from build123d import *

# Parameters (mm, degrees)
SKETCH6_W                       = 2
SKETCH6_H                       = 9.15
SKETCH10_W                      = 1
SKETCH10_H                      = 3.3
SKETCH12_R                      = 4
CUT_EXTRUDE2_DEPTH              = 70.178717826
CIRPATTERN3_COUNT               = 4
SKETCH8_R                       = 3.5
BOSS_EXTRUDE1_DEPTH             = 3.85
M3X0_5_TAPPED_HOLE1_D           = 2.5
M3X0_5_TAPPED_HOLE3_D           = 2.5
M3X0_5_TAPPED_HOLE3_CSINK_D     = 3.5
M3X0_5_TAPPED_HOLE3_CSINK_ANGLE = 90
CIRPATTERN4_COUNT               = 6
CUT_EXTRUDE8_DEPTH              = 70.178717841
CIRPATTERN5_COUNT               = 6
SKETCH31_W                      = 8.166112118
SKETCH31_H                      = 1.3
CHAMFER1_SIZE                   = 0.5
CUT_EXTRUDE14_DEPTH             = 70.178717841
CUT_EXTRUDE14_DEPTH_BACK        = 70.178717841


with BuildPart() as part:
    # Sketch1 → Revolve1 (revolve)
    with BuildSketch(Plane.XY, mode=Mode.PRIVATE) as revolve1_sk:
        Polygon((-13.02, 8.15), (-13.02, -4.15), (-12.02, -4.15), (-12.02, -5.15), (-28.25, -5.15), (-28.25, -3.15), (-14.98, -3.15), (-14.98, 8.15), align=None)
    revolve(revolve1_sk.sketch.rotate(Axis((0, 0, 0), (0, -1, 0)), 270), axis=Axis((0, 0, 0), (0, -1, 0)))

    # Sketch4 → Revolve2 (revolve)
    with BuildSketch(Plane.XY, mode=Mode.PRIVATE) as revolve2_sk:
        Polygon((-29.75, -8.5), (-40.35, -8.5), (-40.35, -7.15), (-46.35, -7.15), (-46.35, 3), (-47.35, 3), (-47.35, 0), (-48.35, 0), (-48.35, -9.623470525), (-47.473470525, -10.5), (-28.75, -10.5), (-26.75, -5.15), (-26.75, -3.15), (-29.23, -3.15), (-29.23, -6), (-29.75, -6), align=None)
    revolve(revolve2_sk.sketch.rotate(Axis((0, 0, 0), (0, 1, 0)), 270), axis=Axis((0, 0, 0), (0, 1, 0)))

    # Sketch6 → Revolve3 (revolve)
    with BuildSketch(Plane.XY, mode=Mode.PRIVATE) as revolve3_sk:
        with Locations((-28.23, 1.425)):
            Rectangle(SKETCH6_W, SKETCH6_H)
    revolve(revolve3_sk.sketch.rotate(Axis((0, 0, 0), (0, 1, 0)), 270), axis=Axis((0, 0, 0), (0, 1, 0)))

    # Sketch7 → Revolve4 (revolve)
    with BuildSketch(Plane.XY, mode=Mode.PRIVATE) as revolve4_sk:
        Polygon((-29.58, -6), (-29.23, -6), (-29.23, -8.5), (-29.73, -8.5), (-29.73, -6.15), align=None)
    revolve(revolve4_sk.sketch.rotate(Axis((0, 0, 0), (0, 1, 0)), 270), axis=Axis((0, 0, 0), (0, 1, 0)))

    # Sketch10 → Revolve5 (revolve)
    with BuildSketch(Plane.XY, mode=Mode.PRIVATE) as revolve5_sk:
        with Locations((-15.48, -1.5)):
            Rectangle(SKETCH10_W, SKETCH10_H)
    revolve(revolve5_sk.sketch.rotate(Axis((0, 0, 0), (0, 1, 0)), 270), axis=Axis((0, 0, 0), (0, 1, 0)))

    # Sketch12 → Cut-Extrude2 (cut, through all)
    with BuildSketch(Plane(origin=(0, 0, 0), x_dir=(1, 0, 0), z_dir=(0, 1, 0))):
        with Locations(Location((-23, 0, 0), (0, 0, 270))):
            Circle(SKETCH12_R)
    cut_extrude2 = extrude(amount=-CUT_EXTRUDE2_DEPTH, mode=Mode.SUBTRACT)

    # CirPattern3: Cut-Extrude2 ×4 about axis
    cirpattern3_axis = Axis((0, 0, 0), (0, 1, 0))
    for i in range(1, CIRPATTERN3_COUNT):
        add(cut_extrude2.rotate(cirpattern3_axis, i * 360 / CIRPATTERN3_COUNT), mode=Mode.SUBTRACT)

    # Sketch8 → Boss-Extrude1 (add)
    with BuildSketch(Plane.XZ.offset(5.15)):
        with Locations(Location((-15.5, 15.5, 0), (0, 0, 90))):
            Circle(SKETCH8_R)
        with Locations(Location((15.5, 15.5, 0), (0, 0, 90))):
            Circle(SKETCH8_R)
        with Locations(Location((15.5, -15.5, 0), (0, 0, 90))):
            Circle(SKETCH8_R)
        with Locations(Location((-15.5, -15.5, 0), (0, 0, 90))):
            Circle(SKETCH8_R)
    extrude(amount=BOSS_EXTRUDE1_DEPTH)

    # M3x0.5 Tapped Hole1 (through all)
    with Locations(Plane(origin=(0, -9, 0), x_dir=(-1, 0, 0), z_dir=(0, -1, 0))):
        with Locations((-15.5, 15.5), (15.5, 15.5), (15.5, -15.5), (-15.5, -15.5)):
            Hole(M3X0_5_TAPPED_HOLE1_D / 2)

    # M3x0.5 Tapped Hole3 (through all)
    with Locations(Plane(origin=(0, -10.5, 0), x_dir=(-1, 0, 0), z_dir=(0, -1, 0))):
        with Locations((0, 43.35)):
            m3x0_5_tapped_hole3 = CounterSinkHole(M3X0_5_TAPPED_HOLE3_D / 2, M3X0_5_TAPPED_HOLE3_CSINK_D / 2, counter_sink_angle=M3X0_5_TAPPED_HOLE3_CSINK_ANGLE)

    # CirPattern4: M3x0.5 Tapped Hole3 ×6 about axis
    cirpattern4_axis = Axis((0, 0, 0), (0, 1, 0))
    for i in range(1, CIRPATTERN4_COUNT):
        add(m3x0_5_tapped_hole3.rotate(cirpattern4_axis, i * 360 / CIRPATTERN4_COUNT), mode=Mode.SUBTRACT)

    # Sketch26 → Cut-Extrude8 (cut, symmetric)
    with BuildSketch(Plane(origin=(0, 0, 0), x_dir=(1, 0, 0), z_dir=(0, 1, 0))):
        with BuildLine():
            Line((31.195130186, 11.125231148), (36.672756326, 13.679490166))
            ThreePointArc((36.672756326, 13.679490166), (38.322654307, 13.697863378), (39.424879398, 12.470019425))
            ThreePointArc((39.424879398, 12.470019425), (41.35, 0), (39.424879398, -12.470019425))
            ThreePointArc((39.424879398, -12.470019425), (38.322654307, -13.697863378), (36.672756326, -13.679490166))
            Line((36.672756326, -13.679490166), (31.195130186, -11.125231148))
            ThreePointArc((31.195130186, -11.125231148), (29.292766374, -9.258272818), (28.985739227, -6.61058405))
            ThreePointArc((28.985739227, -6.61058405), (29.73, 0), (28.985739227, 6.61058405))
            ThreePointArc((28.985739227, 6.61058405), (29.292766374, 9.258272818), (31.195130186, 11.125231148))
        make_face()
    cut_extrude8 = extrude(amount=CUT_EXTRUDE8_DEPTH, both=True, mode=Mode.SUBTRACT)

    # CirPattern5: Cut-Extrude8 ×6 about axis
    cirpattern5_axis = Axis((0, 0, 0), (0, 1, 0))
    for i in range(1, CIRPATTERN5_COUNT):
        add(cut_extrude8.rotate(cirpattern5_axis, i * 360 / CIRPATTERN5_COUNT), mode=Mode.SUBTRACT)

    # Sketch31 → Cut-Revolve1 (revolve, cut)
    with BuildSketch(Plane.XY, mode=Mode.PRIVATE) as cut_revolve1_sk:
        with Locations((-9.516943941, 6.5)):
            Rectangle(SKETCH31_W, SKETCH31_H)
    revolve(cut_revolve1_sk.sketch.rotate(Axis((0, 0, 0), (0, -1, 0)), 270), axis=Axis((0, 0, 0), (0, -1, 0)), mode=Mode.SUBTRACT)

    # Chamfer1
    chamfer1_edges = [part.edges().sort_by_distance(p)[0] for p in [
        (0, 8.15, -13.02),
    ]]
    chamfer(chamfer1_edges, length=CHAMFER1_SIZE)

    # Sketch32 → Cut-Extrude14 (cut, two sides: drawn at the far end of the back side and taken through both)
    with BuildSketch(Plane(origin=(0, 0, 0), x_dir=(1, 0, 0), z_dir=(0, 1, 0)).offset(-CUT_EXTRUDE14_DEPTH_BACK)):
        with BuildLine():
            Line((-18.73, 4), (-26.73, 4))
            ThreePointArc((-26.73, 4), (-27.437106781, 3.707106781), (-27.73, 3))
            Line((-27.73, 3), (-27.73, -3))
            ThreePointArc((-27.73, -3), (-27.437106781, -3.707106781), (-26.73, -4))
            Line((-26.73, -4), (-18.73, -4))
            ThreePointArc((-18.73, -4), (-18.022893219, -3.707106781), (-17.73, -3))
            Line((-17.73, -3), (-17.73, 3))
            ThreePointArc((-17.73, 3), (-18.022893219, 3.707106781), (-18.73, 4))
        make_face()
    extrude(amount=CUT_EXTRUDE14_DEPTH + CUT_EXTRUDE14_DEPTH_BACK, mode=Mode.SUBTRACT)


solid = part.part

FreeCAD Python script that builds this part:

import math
import FreeCAD as App
import Part
import Sketcher
Q = App.Units.Quantity


def edges_at(feature, points):
    """Names of the edges that pass closest to the given points."""
    edges = feature.Shape.Edges
    near = lambda p: min(range(len(edges)), key=lambda i: edges[i].distToShape(Part.Vertex(*p))[0])
    return sorted({f"Edge{near(p) + 1}" for p in points})

doc = App.newDocument("Part")
body = doc.addObject("PartDesign::Body", "Body")

sketch1 = body.newObject("Sketcher::SketchObject", "Sketch")
sketch1.AttachmentSupport = (doc.getObject("XY_Plane"), [""])
sketch1.MapMode = "FlatFace"
sketch1.addGeometry([
    Part.LineSegment(App.Vector(-13, -4.2, 0), App.Vector(-13, 8.2, 0)),
    Part.LineSegment(App.Vector(-13, 8.2, 0), App.Vector(-15, 8.2, 0)),
    Part.LineSegment(App.Vector(-15, 8.2, 0), App.Vector(-15, -3.1, 0)),
    Part.LineSegment(App.Vector(-15, -3.1, 0), App.Vector(-28.2, -3.1, 0)),
    Part.LineSegment(App.Vector(-28.2, -3.1, 0), App.Vector(-28.2, -5.2, 0)),
    Part.LineSegment(App.Vector(-28.2, -5.2, 0), App.Vector(-12, -5.2, 0)),
    Part.LineSegment(App.Vector(-12, -5.2, 0), App.Vector(-12, -4.2, 0)),
    Part.LineSegment(App.Vector(-12, -4.2, 0), App.Vector(-13, -4.2, 0)),
], False)
sketch1.addConstraint([
    Sketcher.Constraint("Coincident", 0, 2, 1, 1),
    Sketcher.Constraint("Coincident", 1, 2, 2, 1),
    Sketcher.Constraint("Coincident", 2, 2, 3, 1),
    Sketcher.Constraint("Coincident", 3, 2, 4, 1),
    Sketcher.Constraint("Coincident", 4, 2, 5, 1),
    Sketcher.Constraint("Coincident", 5, 2, 6, 1),
    Sketcher.Constraint("Coincident", 6, 2, 7, 1),
    Sketcher.Constraint("Coincident", 7, 2, 0, 1),
    Sketcher.Constraint("Vertical", 0),
    Sketcher.Constraint("Horizontal", 1),
    Sketcher.Constraint("Vertical", 2),
    Sketcher.Constraint("Horizontal", 3),
    Sketcher.Constraint("Vertical", 4),
    Sketcher.Constraint("Horizontal", 5),
    Sketcher.Constraint("Vertical", 6),
    Sketcher.Constraint("Horizontal", 7),
    Sketcher.Constraint("Equal", 7, 6),
    Sketcher.Constraint("DistanceX", 7, 2, 7, 1, 1.0),
    Sketcher.Constraint("DistanceY", 4, 2, 4, 1, 2.0),
    Sketcher.Constraint("DistanceY", 0, 1, 0, 2, 12.3),
    Sketcher.Constraint("DistanceX", 1, 2, 1, 1, 1.96),
    Sketcher.Constraint("DistanceX", 3, 2, 3, 1, 13.27),
    Sketcher.Constraint("DistanceX", 0, 2, -1, 1, 13.02),
    Sketcher.Constraint("DistanceY", -1, 1, 0, 2, 8.15),
])
revolution = body.newObject("PartDesign::Revolution", "Revolution")
revolution.Profile = sketch1
revolution.ReferenceAxis = (sketch1, ["V_Axis"])
revolution.Angle = 360

sketch2 = body.newObject("Sketcher::SketchObject", "Sketch001")
sketch2.AttachmentSupport = (doc.getObject("XY_Plane"), [""])
sketch2.MapMode = "FlatFace"
sketch2.addGeometry([
    Part.LineSegment(App.Vector(-29.8, -8.5, 0), App.Vector(-40.4, -8.5, 0)),
    Part.LineSegment(App.Vector(-40.4, -8.5, 0), App.Vector(-40.4, -7.2, 0)),
    Part.LineSegment(App.Vector(-40.4, -7.2, 0), App.Vector(-46.4, -7.2, 0)),
    Part.LineSegment(App.Vector(-46.4, -7.2, 0), App.Vector(-46.4, 3, 0)),
    Part.LineSegment(App.Vector(-46.4, 3, 0), App.Vector(-47.4, 3, 0)),
    Part.LineSegment(App.Vector(-47.4, 3, 0), App.Vector(-47.4, 0, 0)),
    Part.LineSegment(App.Vector(-47.4, 0, 0), App.Vector(-48.4, 0, 0)),
    Part.LineSegment(App.Vector(-48.4, 0, 0), App.Vector(-48.4, -9.6, 0)),
    Part.LineSegment(App.Vector(-48.4, -9.6, 0), App.Vector(-47.5, -10.5, 0)),
    Part.LineSegment(App.Vector(-47.5, -10.5, 0), App.Vector(-28.8, -10.5, 0)),
    Part.LineSegment(App.Vector(-28.8, -10.5, 0), App.Vector(-26.8, -5.2, 0)),
    Part.LineSegment(App.Vector(-26.8, -5.2, 0), App.Vector(-26.8, -3.1, 0)),
    Part.LineSegment(App.Vector(-26.8, -3.1, 0), App.Vector(-29.2, -3.1, 0)),
    Part.LineSegment(App.Vector(-29.2, -3.1, 0), App.Vector(-29.2, -6, 0)),
    Part.LineSegment(App.Vector(-29.2, -6, 0), App.Vector(-29.8, -6, 0)),
    Part.LineSegment(App.Vector(-29.8, -6, 0), App.Vector(-29.8, -8.5, 0)),
], False)
sketch2.addConstraint([
    Sketcher.Constraint("Coincident", 0, 2, 1, 1),
    Sketcher.Constraint("Coincident", 1, 2, 2, 1),
    Sketcher.Constraint("Coincident", 2, 2, 3, 1),
    Sketcher.Constraint("Coincident", 3, 2, 4, 1),
    Sketcher.Constraint("Coincident", 4, 2, 5, 1),
    Sketcher.Constraint("Coincident", 5, 2, 6, 1),
    Sketcher.Constraint("Coincident", 6, 2, 7, 1),
    Sketcher.Constraint("Coincident", 7, 2, 8, 1),
    Sketcher.Constraint("Coincident", 8, 2, 9, 1),
    Sketcher.Constraint("Coincident", 9, 2, 10, 1),
    Sketcher.Constraint("Coincident", 10, 2, 11, 1),
    Sketcher.Constraint("Coincident", 11, 2, 12, 1),
    Sketcher.Constraint("Coincident", 12, 2, 13, 1),
    Sketcher.Constraint("Coincident", 13, 2, 14, 1),
    Sketcher.Constraint("Coincident", 14, 2, 15, 1),
    Sketcher.Constraint("Coincident", 15, 2, 0, 1),
    Sketcher.Constraint("Horizontal", 0),
    Sketcher.Constraint("Vertical", 1),
    Sketcher.Constraint("Horizontal", 2),
    Sketcher.Constraint("Vertical", 3),
    Sketcher.Constraint("Horizontal", 4),
    Sketcher.Constraint("Vertical", 5),
    Sketcher.Constraint("Horizontal", 6),
    Sketcher.Constraint("Vertical", 7),
    Sketcher.Constraint("Horizontal", 9),
    Sketcher.Constraint("Vertical", 11),
    Sketcher.Constraint("Horizontal", 12),
    Sketcher.Constraint("Vertical", 13),
    Sketcher.Constraint("Horizontal", 14),
    Sketcher.Constraint("Vertical", 15),
    Sketcher.Constraint("PointOnObject", 5, 2, -1),
    Sketcher.Constraint("Equal", 4, 6),
    Sketcher.Constraint("DistanceX", 2, 2, 2, 1, 6.0),
    Sketcher.Constraint("DistanceX", 4, 2, 4, 1, 1.0),
    Sketcher.Constraint("DistanceY", 5, 2, 5, 1, 3.0),
    Sketcher.Constraint("DistanceY", 11, 1, 11, 2, 2.0),
    Sketcher.Constraint("Angle", 8, Q("-45 deg")),
    Sketcher.Constraint("DistanceX", 0, 2, 0, 1, 10.6),
    Sketcher.Constraint("DistanceY", 15, 2, 15, 1, 2.5),
    Sketcher.Constraint("DistanceY", 13, 2, -1, 1, 6.0),
    Sketcher.Constraint("DistanceY", 8, 2, 0, 2, 2.0),
    Sketcher.Constraint("DistanceX", 9, 2, 10, 2, 2.0),
    Sketcher.Constraint("DistanceY", 1, 2, 10, 2, 2.0),
    Sketcher.Constraint("DistanceX", 14, 2, 10, 2, 3.0),
    Sketcher.Constraint("DistanceX", 12, 2, 12, 1, 2.48),
    Sketcher.Constraint("DistanceY", 1, 1, 1, 2, 1.35),
    Sketcher.Constraint("DistanceX", 0, 2, -1, 1, 40.35),
    Sketcher.Constraint("Distance", 8, 1.2396),
])
revolution2 = body.newObject("PartDesign::Revolution", "Revolution001")
revolution2.Profile = sketch2
revolution2.ReferenceAxis = (sketch2, ["V_Axis"])
revolution2.Angle = 360

sketch3 = body.newObject("Sketcher::SketchObject", "Sketch002")
sketch3.AttachmentSupport = (doc.getObject("XY_Plane"), [""])
sketch3.MapMode = "FlatFace"
sketch3.addGeometry([
    Part.LineSegment(App.Vector(-29.2, 6, 0), App.Vector(-29.2, -3.1, 0)),
    Part.LineSegment(App.Vector(-29.2, -3.1, 0), App.Vector(-27.2, -3.1, 0)),
    Part.LineSegment(App.Vector(-27.2, -3.1, 0), App.Vector(-27.2, 6, 0)),
    Part.LineSegment(App.Vector(-27.2, 6, 0), App.Vector(-29.2, 6, 0)),
], False)
sketch3.addConstraint([
    Sketcher.Constraint("Coincident", 0, 2, 1, 1),
    Sketcher.Constraint("Coincident", 1, 2, 2, 1),
    Sketcher.Constraint("Coincident", 2, 2, 3, 1),
    Sketcher.Constraint("Coincident", 3, 2, 0, 1),
    Sketcher.Constraint("Vertical", 0),
    Sketcher.Constraint("Horizontal", 1),
    Sketcher.Constraint("Vertical", 2),
    Sketcher.Constraint("Horizontal", 3),
    Sketcher.Constraint("DistanceX", 1, 1, 1, 2, 2.0),
    Sketcher.Constraint("DistanceY", -1, 1, 2, 2, 6.0),
    Sketcher.Constraint("DistanceY", 0, 2, 0, 1, 9.15),
    Sketcher.Constraint("DistanceX", 0, 2, -1, 1, 29.23),
])
revolution3 = body.newObject("PartDesign::Revolution", "Revolution002")
revolution3.Profile = sketch3
revolution3.ReferenceAxis = (sketch3, ["V_Axis"])
revolution3.Angle = 360

sketch4 = body.newObject("Sketcher::SketchObject", "Sketch003")
sketch4.AttachmentSupport = (doc.getObject("XY_Plane"), [""])
sketch4.MapMode = "FlatFace"
sketch4.addGeometry([
    Part.LineSegment(App.Vector(-29.23, -6, 0), App.Vector(-29.58, -6, 0)),
    Part.LineSegment(App.Vector(-29.58, -6, 0), App.Vector(-29.73, -6.15, 0)),
    Part.LineSegment(App.Vector(-29.73, -6.15, 0), App.Vector(-29.73, -8.5, 0)),
    Part.LineSegment(App.Vector(-29.73, -8.5, 0), App.Vector(-29.23, -8.5, 0)),
    Part.LineSegment(App.Vector(-29.23, -8.5, 0), App.Vector(-29.23, -6, 0)),
], False)
sketch4.addConstraint([
    Sketcher.Constraint("Coincident", 0, 2, 1, 1),
    Sketcher.Constraint("Coincident", 1, 2, 2, 1),
    Sketcher.Constraint("Coincident", 2, 2, 3, 1),
    Sketcher.Constraint("Coincident", 3, 2, 4, 1),
    Sketcher.Constraint("Coincident", 4, 2, 0, 1),
    Sketcher.Constraint("Horizontal", 0),
    Sketcher.Constraint("Vertical", 2),
    Sketcher.Constraint("Horizontal", 3),
    Sketcher.Constraint("Vertical", 4),
    Sketcher.Constraint("Angle", 1, Q("-135 deg")),
    Sketcher.Constraint("DistanceX", 3, 1, 3, 2, 0.5),
    Sketcher.Constraint("DistanceY", 4, 1, 4, 2, 2.5),
    Sketcher.Constraint("DistanceY", 0, 2, -1, 1, 6.0),
    Sketcher.Constraint("DistanceX", 0, 2, 0, 1, 0.35),
    Sketcher.Constraint("DistanceX", 0, 2, -1, 1, 29.58),
])
revolution4 = body.newObject("PartDesign::Revolution", "Revolution003")
revolution4.Profile = sketch4
revolution4.ReferenceAxis = (sketch4, ["V_Axis"])
revolution4.Angle = 360

sketch5 = body.newObject("Sketcher::SketchObject", "Sketch004")
sketch5.AttachmentSupport = (doc.getObject("XY_Plane"), [""])
sketch5.MapMode = "FlatFace"
sketch5.addGeometry([
    Part.LineSegment(App.Vector(-16, 0.1, 0), App.Vector(-16, -3.1, 0)),
    Part.LineSegment(App.Vector(-16, -3.1, 0), App.Vector(-15, -3.1, 0)),
    Part.LineSegment(App.Vector(-15, -3.1, 0), App.Vector(-15, 0.1, 0)),
    Part.LineSegment(App.Vector(-15, 0.1, 0), App.Vector(-16, 0.1, 0)),
], False)
sketch5.addConstraint([
    Sketcher.Constraint("Coincident", 0, 2, 1, 1),
    Sketcher.Constraint("Coincident", 1, 2, 2, 1),
    Sketcher.Constraint("Coincident", 2, 2, 3, 1),
    Sketcher.Constraint("Coincident", 3, 2, 0, 1),
    Sketcher.Constraint("Vertical", 0),
    Sketcher.Constraint("Horizontal", 1),
    Sketcher.Constraint("Vertical", 2),
    Sketcher.Constraint("Horizontal", 3),
    Sketcher.Constraint("DistanceX", 1, 1, 1, 2, 1.0),
    Sketcher.Constraint("DistanceY", 0, 2, 0, 1, 3.3),
    Sketcher.Constraint("DistanceX", 0, 2, -1, 1, 15.98),
    Sketcher.Constraint("DistanceY", 0, 2, -1, 1, 3.15),
])
revolution5 = body.newObject("PartDesign::Revolution", "Revolution004")
revolution5.Profile = sketch5
revolution5.ReferenceAxis = (sketch5, ["V_Axis"])
revolution5.Angle = 360

sketch6 = body.newObject("Sketcher::SketchObject", "Sketch005")
sketch6.AttachmentSupport = (doc.getObject("XZ_Plane"), [""])
sketch6.MapMode = "FlatFace"
sketch6.addGeometry(Part.Circle(App.Vector(-23, 0, 0), App.Vector(0, 0, 1), 4), False)
sketch6.addConstraint([
    Sketcher.Constraint("PointOnObject", 0, 3, -1),
    Sketcher.Constraint("Diameter", 0, 8.0),
    Sketcher.Constraint("DistanceX", 0, 3, -1, 1, 23.0),
])
pocket1 = body.newObject("PartDesign::Pocket", "Pocket")
pocket1.Profile = sketch6
pocket1.Type = "ThroughAll"
pocket1.Reversed = True
doc.recompute()

polarpattern = body.newObject("PartDesign::PolarPattern", "PolarPattern")
polarpattern.Originals = [pocket1]
polarpattern.Axis = (doc.getObject("Y_Axis"), [""])
polarpattern.Angle = 360
polarpattern.Occurrences = 4
body.Tip = polarpattern

sketch7 = body.newObject("Sketcher::SketchObject", "Sketch006")
sketch7.AttachmentSupport = (doc.getObject("XZ_Plane"), [""])
sketch7.MapMode = "FlatFace"
sketch7.AttachmentOffset = App.Placement(App.Vector(0, 0, 5.15), App.Rotation())
sketch7.addGeometry([
    Part.Circle(App.Vector(-15.5, 15.5, 0), App.Vector(0, 0, 1), 3.5),
    Part.Circle(App.Vector(15.5, 15.5, 0), App.Vector(0, 0, 1), 3.5),
    Part.Circle(App.Vector(15.5, -15.5, 0), App.Vector(0, 0, 1), 3.5),
    Part.Circle(App.Vector(-15.5, -15.5, 0), App.Vector(0, 0, 1), 3.5),
], False)
sketch7.addConstraint([
    Sketcher.Constraint("Equal", 0, 1),
    Sketcher.Constraint("Equal", 1, 2),
    Sketcher.Constraint("Equal", 2, 3),
    Sketcher.Constraint("Symmetric", 0, 3, 2, 3, -1, 1),
    Sketcher.Constraint("Symmetric", 1, 3, 3, 3, -1, 1),
    Sketcher.Constraint("Symmetric", 0, 3, 1, 3, -2),
    Sketcher.Constraint("Diameter", 0, 7.0),
    Sketcher.Constraint("DistanceX", 0, 3, 1, 3, 31.0),
    Sketcher.Constraint("DistanceY", 2, 3, 1, 3, 31.0),
])
pad1 = body.newObject("PartDesign::Pad", "Pad")
pad1.Profile = sketch7
pad1.Length = 3.85

sketch8 = body.newObject("Sketcher::SketchObject", "Sketch007")
sketch8.AttachmentSupport = (doc.getObject("XZ_Plane"), [""])
sketch8.MapMode = "FlatFace"
sketch8.AttachmentOffset = App.Placement(App.Vector(0, 0, 9), App.Rotation())
sketch8.addGeometry([
    Part.Circle(App.Vector(15.5, -15.5, 0), App.Vector(0, 0, 1), 1.2),
    Part.Circle(App.Vector(-15.5, -15.5, 0), App.Vector(0, 0, 1), 1.2),
    Part.Circle(App.Vector(-15.5, 15.5, 0), App.Vector(0, 0, 1), 1.2),
    Part.Circle(App.Vector(15.5, 15.5, 0), App.Vector(0, 0, 1), 1.2),
], False)
sketch8.addConstraint([
    Sketcher.Constraint("Equal", 0, 1),
    Sketcher.Constraint("Equal", 1, 2),
    Sketcher.Constraint("Equal", 2, 3),
    Sketcher.Constraint("Symmetric", 0, 3, 2, 3, -1, 1),
    Sketcher.Constraint("Symmetric", 1, 3, 3, 3, -1, 1),
    Sketcher.Constraint("Symmetric", 0, 3, 1, 3, -2),
    Sketcher.Constraint("Diameter", 0, 2.5),
    Sketcher.Constraint("DistanceX", 1, 3, 0, 3, 31.0),
    Sketcher.Constraint("DistanceY", 1, 3, 2, 3, 31.0),
])
doc.recompute()
hole = body.newObject("PartDesign::Hole", "Hole")
hole.Profile = sketch8
hole.ThreadType = "None"
hole.Diameter = 2.5
hole.DepthType = "ThroughAll"

sketch9 = body.newObject("Sketcher::SketchObject", "Sketch008")
sketch9.AttachmentSupport = (doc.getObject("XZ_Plane"), [""])
sketch9.MapMode = "FlatFace"
sketch9.AttachmentOffset = App.Placement(App.Vector(0, 0, 10.5), App.Rotation())
sketch9.addGeometry(Part.Circle(App.Vector(0, -43.4, 0), App.Vector(0, 0, 1), 1.2), False)
sketch9.addConstraint([
    Sketcher.Constraint("PointOnObject", 0, 3, -2),
    Sketcher.Constraint("Diameter", 0, 2.5),
    Sketcher.Constraint("DistanceY", 0, 3, -1, 1, 43.35),
])
doc.recompute()
hole2 = body.newObject("PartDesign::Hole", "Hole001")
hole2.Profile = sketch9
hole2.ThreadType = "None"
hole2.Diameter = 2.5
hole2.DepthType = "ThroughAll"
hole2.HoleCutType = "Countersink"
hole2.HoleCutDiameter = 3.5
hole2.HoleCutCountersinkAngle = 90
doc.recompute()

polarpattern2 = body.newObject("PartDesign::PolarPattern", "PolarPattern001")
polarpattern2.Originals = [hole2]
polarpattern2.Axis = (doc.getObject("Y_Axis"), [""])
polarpattern2.Angle = 360
polarpattern2.Occurrences = 6
body.Tip = polarpattern2

sketch10 = body.newObject("Sketcher::SketchObject", "Sketch009")
sketch10.AttachmentSupport = (doc.getObject("XZ_Plane"), [""])
sketch10.MapMode = "FlatFace"
sketch10.addGeometry([
    Part.LineSegment(App.Vector(36.7, -13.7, 0), App.Vector(31.2, -11.1, 0)),
    Part.ArcOfCircle(Part.Circle(App.Vector(32.9, -7.5, 0), App.Vector(0, 0, 1), 4), math.radians(167), math.radians(245)),
    Part.ArcOfCircle(Part.Circle(App.Vector(0, 0, 0), App.Vector(0, 0, 1), 29.7), math.radians(-13), math.radians(13)),
    Part.ArcOfCircle(Part.Circle(App.Vector(32.9, 7.5, 0), App.Vector(0, 0, 1), 4), math.radians(115), math.radians(193)),
    Part.LineSegment(App.Vector(31.2, 11.1, 0), App.Vector(36.7, 13.7, 0)),
    Part.ArcOfCircle(Part.Circle(App.Vector(37.5, 11.9, 0), App.Vector(0, 0, 1), 2), math.radians(18), math.radians(115)),
    Part.ArcOfCircle(Part.Circle(App.Vector(0, 0, 0), App.Vector(0, 0, 1), 41.4), math.radians(-18), math.radians(18)),
    Part.ArcOfCircle(Part.Circle(App.Vector(37.5, -11.9, 0), App.Vector(0, 0, 1), 2), math.radians(-115), math.radians(-18)),
], False)
sketch10.addConstraint([
    Sketcher.Constraint("Tangent", 0, 2, 1, 2),
    Sketcher.Constraint("Tangent", 1, 1, 2, 1),
    Sketcher.Constraint("Tangent", 2, 2, 3, 2),
    Sketcher.Constraint("Tangent", 3, 1, 4, 1),
    Sketcher.Constraint("Tangent", 4, 2, 5, 2),
    Sketcher.Constraint("Tangent", 5, 1, 6, 2),
    Sketcher.Constraint("Tangent", 6, 1, 7, 2),
    Sketcher.Constraint("Tangent", 7, 1, 0, 1),
    Sketcher.Constraint("Coincident", 2, 3, -1, 1),
    Sketcher.Constraint("Coincident", 6, 3, -1, 1),
    Sketcher.Constraint("Equal", 1, 3),
    Sketcher.Constraint("Equal", 5, 7),
    Sketcher.Constraint("Symmetric", 0, 2, 3, 1, -1),
    Sketcher.Constraint("Radius", 1, 4.0),
    Sketcher.Constraint("Radius", 5, 2.0),
    Sketcher.Constraint("Angle", 0, Q("155 deg")),
    Sketcher.Constraint("Radius", 2, 29.73),
    Sketcher.Constraint("Radius", 6, 41.35),
    Sketcher.Constraint("DistanceY", 1, 3, 3, 3, 15.0),
])
pocket2 = body.newObject("PartDesign::Pocket", "Pocket001")
pocket2.Profile = sketch10
pocket2.Length = 140.357436
pocket2.Midplane = True
doc.recompute()

polarpattern3 = body.newObject("PartDesign::PolarPattern", "PolarPattern002")
polarpattern3.Originals = [pocket2]
polarpattern3.Axis = (doc.getObject("Y_Axis"), [""])
polarpattern3.Angle = 360
polarpattern3.Occurrences = 6
body.Tip = polarpattern3

sketch11 = body.newObject("Sketcher::SketchObject", "Sketch010")
sketch11.AttachmentSupport = (doc.getObject("XY_Plane"), [""])
sketch11.MapMode = "FlatFace"
sketch11.addGeometry([
    Part.LineSegment(App.Vector(-13.6, 7.2, 0), App.Vector(-13.6, 5.8, 0)),
    Part.LineSegment(App.Vector(-13.6, 5.8, 0), App.Vector(-5.4, 5.8, 0)),
    Part.LineSegment(App.Vector(-5.4, 5.8, 0), App.Vector(-5.4, 7.2, 0)),
    Part.LineSegment(App.Vector(-5.4, 7.2, 0), App.Vector(-13.6, 7.2, 0)),
], False)
sketch11.addConstraint([
    Sketcher.Constraint("Coincident", 0, 2, 1, 1),
    Sketcher.Constraint("Coincident", 1, 2, 2, 1),
    Sketcher.Constraint("Coincident", 2, 2, 3, 1),
    Sketcher.Constraint("Coincident", 3, 2, 0, 1),
    Sketcher.Constraint("Vertical", 0),
    Sketcher.Constraint("Horizontal", 1),
    Sketcher.Constraint("Vertical", 2),
    Sketcher.Constraint("Horizontal", 3),
    Sketcher.Constraint("DistanceY", 0, 2, 0, 1, 1.3),
    Sketcher.Constraint("DistanceX", 0, 2, -1, 1, 13.6),
    Sketcher.Constraint("DistanceY", -1, 1, 0, 2, 5.85),
    Sketcher.Constraint("DistanceX", 1, 1, 1, 2, 8.166112),
])
groove = body.newObject("PartDesign::Groove", "Groove")
groove.Profile = sketch11
groove.ReferenceAxis = (sketch11, ["V_Axis"])
groove.Angle = 360
doc.recompute()

chamfer = body.newObject("PartDesign::Chamfer", "Chamfer")
chamfer.Base = (groove, edges_at(groove, [(0, 8.15, -13.02)]))
chamfer.Size = 0.5

sketch12 = body.newObject("Sketcher::SketchObject", "Sketch011")
sketch12.AttachmentSupport = (doc.getObject("XZ_Plane"), [""])
sketch12.MapMode = "FlatFace"
sketch12.addGeometry([
    Part.LineSegment(App.Vector(-18.7, -4, 0), App.Vector(-26.7, -4, 0)),
    Part.ArcOfCircle(Part.Circle(App.Vector(-26.7, -3, 0), App.Vector(0, 0, 1), 1), math.radians(-180), math.radians(-90)),
    Part.LineSegment(App.Vector(-27.7, -3, 0), App.Vector(-27.7, 3, 0)),
    Part.ArcOfCircle(Part.Circle(App.Vector(-26.7, 3, 0), App.Vector(0, 0, 1), 1), math.radians(90), math.radians(180)),
    Part.LineSegment(App.Vector(-26.7, 4, 0), App.Vector(-18.7, 4, 0)),
    Part.ArcOfCircle(Part.Circle(App.Vector(-18.7, 3, 0), App.Vector(0, 0, 1), 1), math.radians(0), math.radians(90)),
    Part.LineSegment(App.Vector(-17.7, 3, 0), App.Vector(-17.7, -3, 0)),
    Part.ArcOfCircle(Part.Circle(App.Vector(-18.7, -3, 0), App.Vector(0, 0, 1), 1), math.radians(-90), math.radians(0)),
], False)
sketch12.addConstraint([
    Sketcher.Constraint("Tangent", 0, 2, 1, 2),
    Sketcher.Constraint("Tangent", 1, 1, 2, 1),
    Sketcher.Constraint("Tangent", 2, 2, 3, 2),
    Sketcher.Constraint("Tangent", 3, 1, 4, 1),
    Sketcher.Constraint("Tangent", 4, 2, 5, 2),
    Sketcher.Constraint("Tangent", 5, 1, 6, 1),
    Sketcher.Constraint("Tangent", 6, 2, 7, 2),
    Sketcher.Constraint("Tangent", 7, 1, 0, 1),
    Sketcher.Constraint("Horizontal", 0),
    Sketcher.Constraint("Vertical", 2),
    Sketcher.Constraint("Horizontal", 4),
    Sketcher.Constraint("Vertical", 6),
    Sketcher.Constraint("Equal", 1, 3),
    Sketcher.Constraint("Equal", 3, 5),
    Sketcher.Constraint("Equal", 5, 7),
    Sketcher.Constraint("Radius", 1, 1.0),
    Sketcher.Constraint("DistanceX", 0, 2, 0, 1, 8.0),
    Sketcher.Constraint("DistanceY", 2, 1, 2, 2, 6.0),
    Sketcher.Constraint("DistanceY", 1, 3, -1, 1, 3.0),
    Sketcher.Constraint("DistanceX", 1, 3, -1, 1, 26.73),
])
pocket3 = body.newObject("PartDesign::Pocket", "Pocket002")
pocket3.Profile = sketch12
pocket3.Type = "ThroughAll"
pocket3.Midplane = True

doc.recompute()
